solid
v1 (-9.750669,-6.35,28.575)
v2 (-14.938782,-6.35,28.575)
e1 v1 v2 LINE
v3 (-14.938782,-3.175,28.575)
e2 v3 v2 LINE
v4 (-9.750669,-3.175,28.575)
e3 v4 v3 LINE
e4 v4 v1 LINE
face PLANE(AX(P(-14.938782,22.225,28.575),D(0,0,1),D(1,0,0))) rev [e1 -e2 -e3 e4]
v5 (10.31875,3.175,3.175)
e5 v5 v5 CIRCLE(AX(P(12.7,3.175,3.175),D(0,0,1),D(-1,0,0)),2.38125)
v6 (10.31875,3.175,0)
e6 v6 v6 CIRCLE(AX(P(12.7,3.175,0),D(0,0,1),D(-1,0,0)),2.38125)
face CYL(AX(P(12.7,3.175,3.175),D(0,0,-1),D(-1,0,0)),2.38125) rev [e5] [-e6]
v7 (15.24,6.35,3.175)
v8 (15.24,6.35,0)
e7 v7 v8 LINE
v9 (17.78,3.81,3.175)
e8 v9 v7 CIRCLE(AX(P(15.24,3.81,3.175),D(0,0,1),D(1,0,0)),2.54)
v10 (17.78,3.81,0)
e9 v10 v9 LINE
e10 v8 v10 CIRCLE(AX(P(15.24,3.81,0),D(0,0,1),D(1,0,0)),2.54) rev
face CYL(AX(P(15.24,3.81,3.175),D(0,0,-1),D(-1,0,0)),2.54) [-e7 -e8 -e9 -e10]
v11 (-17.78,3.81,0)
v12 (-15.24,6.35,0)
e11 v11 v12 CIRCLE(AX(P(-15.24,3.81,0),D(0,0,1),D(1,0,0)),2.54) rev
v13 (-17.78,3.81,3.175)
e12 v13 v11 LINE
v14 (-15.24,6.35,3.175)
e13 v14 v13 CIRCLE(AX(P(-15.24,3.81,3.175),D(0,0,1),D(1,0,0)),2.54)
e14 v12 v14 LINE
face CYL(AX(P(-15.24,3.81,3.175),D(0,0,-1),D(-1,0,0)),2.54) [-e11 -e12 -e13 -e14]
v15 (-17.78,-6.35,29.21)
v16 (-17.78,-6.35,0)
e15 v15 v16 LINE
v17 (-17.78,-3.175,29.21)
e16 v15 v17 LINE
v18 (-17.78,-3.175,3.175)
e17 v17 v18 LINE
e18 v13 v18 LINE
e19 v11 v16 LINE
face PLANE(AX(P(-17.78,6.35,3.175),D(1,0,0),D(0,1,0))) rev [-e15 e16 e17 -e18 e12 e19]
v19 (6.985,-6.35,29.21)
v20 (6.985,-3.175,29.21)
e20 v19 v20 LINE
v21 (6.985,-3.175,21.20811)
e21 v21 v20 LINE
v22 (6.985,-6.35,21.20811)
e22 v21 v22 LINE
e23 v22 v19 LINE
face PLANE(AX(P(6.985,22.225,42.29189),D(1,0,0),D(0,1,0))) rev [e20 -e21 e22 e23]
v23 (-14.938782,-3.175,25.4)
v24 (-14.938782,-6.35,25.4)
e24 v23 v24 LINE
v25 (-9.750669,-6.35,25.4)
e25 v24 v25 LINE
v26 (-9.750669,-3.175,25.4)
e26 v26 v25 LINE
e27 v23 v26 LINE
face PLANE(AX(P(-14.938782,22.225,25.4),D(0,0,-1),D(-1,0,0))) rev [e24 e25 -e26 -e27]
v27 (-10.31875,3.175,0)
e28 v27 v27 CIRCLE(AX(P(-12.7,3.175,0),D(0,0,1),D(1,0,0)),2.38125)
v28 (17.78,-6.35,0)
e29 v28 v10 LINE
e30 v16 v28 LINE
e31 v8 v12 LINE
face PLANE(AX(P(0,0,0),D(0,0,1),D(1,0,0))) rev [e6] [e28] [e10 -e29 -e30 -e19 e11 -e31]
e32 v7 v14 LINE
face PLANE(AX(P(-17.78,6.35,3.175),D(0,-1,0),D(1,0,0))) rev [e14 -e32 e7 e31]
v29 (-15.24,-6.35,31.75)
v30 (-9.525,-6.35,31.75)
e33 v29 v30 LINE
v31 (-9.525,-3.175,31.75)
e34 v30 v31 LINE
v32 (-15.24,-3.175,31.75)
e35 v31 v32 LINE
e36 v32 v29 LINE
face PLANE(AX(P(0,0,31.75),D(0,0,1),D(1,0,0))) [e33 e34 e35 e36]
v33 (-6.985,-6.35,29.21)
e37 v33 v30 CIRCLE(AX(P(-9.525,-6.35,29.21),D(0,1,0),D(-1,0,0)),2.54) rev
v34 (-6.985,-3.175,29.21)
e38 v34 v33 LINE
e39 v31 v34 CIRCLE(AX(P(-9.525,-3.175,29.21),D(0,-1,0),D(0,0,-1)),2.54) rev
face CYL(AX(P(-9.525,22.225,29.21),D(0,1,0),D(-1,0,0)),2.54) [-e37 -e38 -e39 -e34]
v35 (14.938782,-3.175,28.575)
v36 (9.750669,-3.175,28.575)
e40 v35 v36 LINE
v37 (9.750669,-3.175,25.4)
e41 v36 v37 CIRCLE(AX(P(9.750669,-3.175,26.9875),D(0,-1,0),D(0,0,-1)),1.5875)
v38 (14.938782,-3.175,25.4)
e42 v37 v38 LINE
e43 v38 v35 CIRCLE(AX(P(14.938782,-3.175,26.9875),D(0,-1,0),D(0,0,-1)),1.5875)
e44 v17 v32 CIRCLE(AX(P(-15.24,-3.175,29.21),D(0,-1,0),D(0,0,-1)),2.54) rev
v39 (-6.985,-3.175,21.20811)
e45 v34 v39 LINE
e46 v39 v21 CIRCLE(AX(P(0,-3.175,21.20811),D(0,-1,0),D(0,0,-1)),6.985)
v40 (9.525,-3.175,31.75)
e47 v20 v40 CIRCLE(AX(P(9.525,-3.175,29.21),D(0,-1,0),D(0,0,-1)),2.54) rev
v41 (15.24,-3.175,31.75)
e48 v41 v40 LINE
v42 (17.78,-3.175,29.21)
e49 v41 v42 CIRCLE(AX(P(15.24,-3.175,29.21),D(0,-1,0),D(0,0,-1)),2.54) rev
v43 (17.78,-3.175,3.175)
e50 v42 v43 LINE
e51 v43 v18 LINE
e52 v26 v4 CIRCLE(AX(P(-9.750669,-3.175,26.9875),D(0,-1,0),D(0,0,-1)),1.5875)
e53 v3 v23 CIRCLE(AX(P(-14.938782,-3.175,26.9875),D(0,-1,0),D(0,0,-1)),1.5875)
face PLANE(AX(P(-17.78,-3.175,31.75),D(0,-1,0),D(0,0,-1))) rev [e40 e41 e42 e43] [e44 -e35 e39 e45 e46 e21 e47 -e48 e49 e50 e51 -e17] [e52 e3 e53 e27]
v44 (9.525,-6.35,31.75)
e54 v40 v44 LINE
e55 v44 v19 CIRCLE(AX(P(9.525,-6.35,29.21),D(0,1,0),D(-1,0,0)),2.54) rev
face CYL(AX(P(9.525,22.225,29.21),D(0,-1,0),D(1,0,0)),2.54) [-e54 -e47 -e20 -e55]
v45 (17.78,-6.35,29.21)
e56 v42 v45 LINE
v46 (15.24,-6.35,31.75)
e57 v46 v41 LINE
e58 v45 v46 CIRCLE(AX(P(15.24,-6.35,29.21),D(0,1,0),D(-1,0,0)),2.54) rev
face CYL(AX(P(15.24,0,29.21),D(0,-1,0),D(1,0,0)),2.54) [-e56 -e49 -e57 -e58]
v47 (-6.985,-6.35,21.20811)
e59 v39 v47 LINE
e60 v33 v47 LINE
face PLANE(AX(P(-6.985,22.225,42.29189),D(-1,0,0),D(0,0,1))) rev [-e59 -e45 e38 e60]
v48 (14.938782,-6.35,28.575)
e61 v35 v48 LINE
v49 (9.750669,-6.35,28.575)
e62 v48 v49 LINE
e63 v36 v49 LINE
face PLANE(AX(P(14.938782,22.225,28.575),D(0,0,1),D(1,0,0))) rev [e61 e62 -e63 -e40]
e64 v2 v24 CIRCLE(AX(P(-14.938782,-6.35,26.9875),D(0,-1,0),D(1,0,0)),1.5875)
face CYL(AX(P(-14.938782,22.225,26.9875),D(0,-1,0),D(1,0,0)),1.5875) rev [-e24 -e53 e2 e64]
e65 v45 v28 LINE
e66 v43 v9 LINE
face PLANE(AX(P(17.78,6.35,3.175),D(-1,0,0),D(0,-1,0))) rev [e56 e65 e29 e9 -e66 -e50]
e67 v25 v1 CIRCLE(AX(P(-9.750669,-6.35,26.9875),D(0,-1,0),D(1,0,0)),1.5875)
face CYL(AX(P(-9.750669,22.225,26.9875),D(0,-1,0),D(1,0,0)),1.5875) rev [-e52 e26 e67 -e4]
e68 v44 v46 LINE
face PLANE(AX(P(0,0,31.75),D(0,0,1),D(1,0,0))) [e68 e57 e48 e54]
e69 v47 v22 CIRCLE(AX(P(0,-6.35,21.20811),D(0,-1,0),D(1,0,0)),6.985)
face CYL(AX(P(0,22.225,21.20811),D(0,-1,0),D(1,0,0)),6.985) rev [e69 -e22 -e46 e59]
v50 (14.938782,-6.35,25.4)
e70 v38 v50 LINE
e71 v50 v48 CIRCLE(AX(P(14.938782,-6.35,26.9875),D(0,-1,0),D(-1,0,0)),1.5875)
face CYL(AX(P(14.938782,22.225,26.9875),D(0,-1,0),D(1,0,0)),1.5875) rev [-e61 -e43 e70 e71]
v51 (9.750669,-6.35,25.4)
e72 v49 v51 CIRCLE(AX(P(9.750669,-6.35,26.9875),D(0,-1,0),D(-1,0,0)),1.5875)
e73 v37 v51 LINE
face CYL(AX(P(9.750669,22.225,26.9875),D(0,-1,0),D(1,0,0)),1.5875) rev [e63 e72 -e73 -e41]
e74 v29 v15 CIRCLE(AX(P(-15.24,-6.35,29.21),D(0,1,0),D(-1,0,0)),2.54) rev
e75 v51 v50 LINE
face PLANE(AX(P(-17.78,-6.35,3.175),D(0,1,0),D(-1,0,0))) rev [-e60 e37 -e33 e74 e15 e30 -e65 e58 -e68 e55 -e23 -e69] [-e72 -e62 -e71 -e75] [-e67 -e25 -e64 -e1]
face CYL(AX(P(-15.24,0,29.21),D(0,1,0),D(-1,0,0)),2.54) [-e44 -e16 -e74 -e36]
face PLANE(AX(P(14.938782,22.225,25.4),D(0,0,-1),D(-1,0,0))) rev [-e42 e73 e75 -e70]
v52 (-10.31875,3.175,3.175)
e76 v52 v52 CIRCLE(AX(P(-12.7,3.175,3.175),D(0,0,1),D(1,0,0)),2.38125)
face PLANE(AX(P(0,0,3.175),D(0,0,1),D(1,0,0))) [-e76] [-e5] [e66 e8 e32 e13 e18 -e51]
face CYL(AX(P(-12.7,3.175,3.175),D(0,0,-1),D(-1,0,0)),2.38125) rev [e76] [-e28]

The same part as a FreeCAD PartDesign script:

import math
import FreeCAD as App
import Part
import Sketcher

V = App.Vector
Q = App.Units.Quantity


def edges_at(feature, points):
    """Names of the edges that pass closest to the given points."""
    edges = feature.Shape.Edges
    near = lambda p: min(range(len(edges)), key=lambda i: edges[i].distToShape(Part.Vertex(*p))[0])
    return sorted({f"Edge{near(p) + 1}" for p in points})

doc = App.newDocument("Part")
body = doc.addObject("PartDesign::Body", "Body")

# Sketch on XY plane
sketch1 = body.newObject("Sketcher::SketchObject", "Sketch")
sketch1.AttachmentSupport = (doc.getObject("XY_Plane"), [""])
sketch1.MapMode = "FlatFace"
sketch1.addGeometry([
    Part.LineSegment(V(-17.8, 6.3, 0), V(-17.8, -6.3, 0)),  # 0
    Part.LineSegment(V(-17.8, -6.3, 0), V(17.8, -6.3, 0)),  # 1
    Part.LineSegment(V(17.8, -6.3, 0), V(17.8, 6.3, 0)),  # 2
    Part.LineSegment(V(17.8, 6.3, 0), V(-17.8, 6.3, 0)),  # 3
    Part.Circle(V(-12.7, 3.2, 0), V(0, 0, 1), 2.4),  # 4
    Part.Circle(V(12.7, 3.2, 0), V(0, 0, 1), 2.4),  # 5
], False)
sketch1.addConstraint([
    Sketcher.Constraint("Coincident", 0, 2, 1, 1),
    Sketcher.Constraint("Coincident", 1, 2, 2, 1),
    Sketcher.Constraint("Coincident", 2, 2, 3, 1),
    Sketcher.Constraint("Coincident", 3, 2, 0, 1),
    Sketcher.Constraint("Vertical", 0),
    Sketcher.Constraint("Horizontal", 1),
    Sketcher.Constraint("Vertical", 2),
    Sketcher.Constraint("Horizontal", 3),
    Sketcher.Constraint("Equal", 4, 5),
    Sketcher.Constraint("Symmetric", 0, 2, 2, 2, -1, 1),
    Sketcher.Constraint("Symmetric", 4, 3, 5, 3, -2),
    Sketcher.Constraint("Diameter", 4, Q("0.1875 in")),
    Sketcher.Constraint("DistanceX", 1, 1, 1, 2, Q("1.4 in")),
    Sketcher.Constraint("DistanceY", 0, 2, 0, 1, Q("0.5 in")),
    Sketcher.Constraint("DistanceX", 4, 3, 5, 3, Q("1 in")),
    Sketcher.Constraint("DistanceY", -1, 1, 4, 3, Q("0.125 in")),
])
pad1 = body.newObject("PartDesign::Pad", "Pad")
pad1.Profile = sketch1
pad1.Length = Q("0.125 in")

# Sketch on XY plane
sketch2 = body.newObject("Sketcher::SketchObject", "Sketch001")
sketch2.AttachmentSupport = (doc.getObject("XY_Plane"), [""])
sketch2.MapMode = "FlatFace"
sketch2.AttachmentOffset = App.Placement(V(0, 0, 0.125 * 25.4), App.Rotation())
sketch2.addGeometry([
    Part.LineSegment(V(-17.8, -3.2, 0), V(-17.8, -6.3, 0)),
    Part.LineSegment(V(-17.8, -6.3, 0), V(17.8, -6.3, 0)),
    Part.LineSegment(V(17.8, -6.3, 0), V(17.8, -3.2, 0)),
    Part.LineSegment(V(17.8, -3.2, 0), V(-17.8, -3.2, 0)),
], False)
sketch2.addConstraint([
    Sketcher.Constraint("Coincident", 0, 2, 1, 1),
    Sketcher.Constraint("Coincident", 1, 2, 2, 1),
    Sketcher.Constraint("Coincident", 2, 2, 3, 1),
    Sketcher.Constraint("Coincident", 3, 2, 0, 1),
    Sketcher.Constraint("Vertical", 0),
    Sketcher.Constraint("Horizontal", 1),
    Sketcher.Constraint("Vertical", 2),
    Sketcher.Constraint("Horizontal", 3),
    Sketcher.Constraint("DistanceX", 1, 1, 1, 2, Q("1.4 in")),
    Sketcher.Constraint("DistanceX", 0, 2, -1, 1, Q("0.7 in")),
    Sketcher.Constraint("DistanceY", 0, 2, 0, 1, Q("0.125 in")),
    Sketcher.Constraint("DistanceY", 0, 2, -1, 1, Q("0.25 in")),
])
pad2 = body.newObject("PartDesign::Pad", "Pad001")
pad2.Profile = sketch2
pad2.Length = Q("1.125 in")

# Sketch on XZ plane
sketch3 = body.newObject("Sketcher::SketchObject", "Sketch002")
sketch3.AttachmentSupport = (doc.getObject("XZ_Plane"), [""])
sketch3.MapMode = "FlatFace"
sketch3.AttachmentOffset = App.Placement(V(0, 0, 0.25 * 25.4), App.Rotation())
sketch3.addGeometry([
    Part.LineSegment(V(7, 42.3, 0), V(-7, 42.3, 0)),  # 0
    Part.LineSegment(V(-7, 42.3, 0), V(-7, 21.2, 0)),  # 1
    Part.ArcOfCircle(Part.Circle(V(0, 21.2, 0), V(0, 0, 1), 7), math.radians(180), math.radians(360)),  # 2
    Part.LineSegment(V(7, 21.2, 0), V(7, 42.3, 0)),  # 3
    Part.LineSegment(V(-9.8, 28.6, 0), V(-14.9, 28.6, 0)),  # 4
    Part.ArcOfCircle(Part.Circle(V(-14.9, 27, 0), V(0, 0, 1), 1.6), math.radians(90), math.radians(270)),  # 5
    Part.LineSegment(V(-14.9, 25.4, 0), V(-9.8, 25.4, 0)),  # 6
    Part.ArcOfCircle(Part.Circle(V(-9.8, 27, 0), V(0, 0, 1), 1.6), math.radians(-90), math.radians(90)),  # 7
    Part.LineSegment(V(14.9, 28.6, 0), V(9.8, 28.6, 0)),  # 8
    Part.ArcOfCircle(Part.Circle(V(9.8, 27, 0), V(0, 0, 1), 1.6), math.radians(90), math.radians(270)),  # 9
    Part.LineSegment(V(9.8, 25.4, 0), V(14.9, 25.4, 0)),  # 10
    Part.ArcOfCircle(Part.Circle(V(14.9, 27, 0), V(0, 0, 1), 1.6), math.radians(-90), math.radians(90)),  # 11
], False)
sketch3.addConstraint([
    Sketcher.Constraint("Coincident", 0, 2, 1, 1),
    Sketcher.Constraint("Tangent", 1, 2, 2, 1),
    Sketcher.Constraint("Tangent", 2, 2, 3, 1),
    Sketcher.Constraint("Coincident", 3, 2, 0, 1),
    Sketcher.Constraint("Tangent", 4, 2, 5, 1),
    Sketcher.Constraint("Tangent", 5, 2, 6, 1),
    Sketcher.Constraint("Tangent", 6, 2, 7, 1),
    Sketcher.Constraint("Tangent", 7, 2, 4, 1),
    Sketcher.Constraint("Tangent", 8, 2, 9, 1),
    Sketcher.Constraint("Tangent", 9, 2, 10, 1),
    Sketcher.Constraint("Tangent", 10, 2, 11, 1),
    Sketcher.Constraint("Tangent", 11, 2, 8, 1),
    Sketcher.Constraint("Horizontal", 0),
    Sketcher.Constraint("Vertical", 1),
    Sketcher.Constraint("Vertical", 3),
    Sketcher.Constraint("Horizontal", 4),
    Sketcher.Constraint("Horizontal", 6),
    Sketcher.Constraint("Horizontal", 8),
    Sketcher.Constraint("Horizontal", 10),
    Sketcher.Constraint("Equal", 7, 9),
    Sketcher.Constraint("Symmetric", 7, 3, 9, 3, -2),
    Sketcher.Constraint("PointOnObject", 2, 3, -2),
    Sketcher.Constraint("Equal", 6, 8),
    Sketcher.Constraint("DistanceY", -1, 1, 5, 2, Q("1 in")),
    Sketcher.Constraint("Radius", 2, Q("0.275 in")),
    Sketcher.Constraint("Radius", 5, Q("0.0625 in")),
    Sketcher.Constraint("DistanceY", 1, 2, 1, 1, Q("21.083781 mm")),
    Sketcher.Constraint("DistanceX", 4, 2, 4, 1, Q("5.188113 mm")),
    Sketcher.Constraint("DistanceY", -1, 1, 2, 3, Q("21.20811 mm")),
    Sketcher.Constraint("DistanceX", 5, 3, -1, 1, Q("14.938782 mm")),
])
pocket1 = body.newObject("PartDesign::Pocket", "Pocket")
pocket1.Profile = sketch3
pocket1.Length = Q("1.125 in")
doc.recompute()

fillet = body.newObject("PartDesign::Fillet", "Fillet")
fillet.Base = (pocket1, edges_at(pocket1, [
    (6.985, -4.763, 31.75),
    (17.78, -4.763, 31.75),
    (-6.985, -4.763, 31.75),
    (-17.78, -4.763, 31.75),
    (-17.78, 6.35, 1.587),
    (17.78, 6.35, 1.587),
]))
fillet.Radius = Q("0.1 in")

doc.recompute()
